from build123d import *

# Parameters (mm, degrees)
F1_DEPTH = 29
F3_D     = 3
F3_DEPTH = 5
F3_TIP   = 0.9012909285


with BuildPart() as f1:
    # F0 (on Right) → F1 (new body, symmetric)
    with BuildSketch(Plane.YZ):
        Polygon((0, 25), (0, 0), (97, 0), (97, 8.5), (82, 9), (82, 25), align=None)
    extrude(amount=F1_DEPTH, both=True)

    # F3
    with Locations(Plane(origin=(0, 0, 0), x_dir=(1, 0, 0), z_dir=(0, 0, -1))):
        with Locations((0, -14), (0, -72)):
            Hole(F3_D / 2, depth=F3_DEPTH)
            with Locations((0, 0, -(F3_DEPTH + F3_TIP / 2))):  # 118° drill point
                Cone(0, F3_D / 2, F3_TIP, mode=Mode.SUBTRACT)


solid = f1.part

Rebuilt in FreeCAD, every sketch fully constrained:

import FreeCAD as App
import Part
import Sketcher

doc = App.newDocument("Part")
body = doc.addObject("PartDesign::Body", "Body")

# Sketch on YZ plane
sketch1 = body.newObject("Sketcher::SketchObject", "Sketch")
sketch1.AttachmentSupport = (doc.getObject("YZ_Plane"), [""])
sketch1.MapMode = "FlatFace"
sketch1.addGeometry(Part.LineSegment(App.Vector(0, 25, 0), App.Vector(0, 0, 0)), False)
sketch1.addGeometry(Part.LineSegment(App.Vector(0, 0, 0), App.Vector(97, 0, 0)), False)
sketch1.addGeometry(Part.LineSegment(App.Vector(97, 0, 0), App.Vector(97, 8.5, 0)), False)
sketch1.addGeometry(Part.LineSegment(App.Vector(97, 8.5, 0), App.Vector(82, 9, 0)), False)
sketch1.addGeometry(Part.LineSegment(App.Vector(82, 9, 0), App.Vector(82, 25, 0)), False)
sketch1.addGeometry(Part.LineSegment(App.Vector(82, 25, 0), App.Vector(0, 25, 0)), False)
sketch1.addConstraint(Sketcher.Constraint("Coincident", 0, 2, 1, 1))
sketch1.addConstraint(Sketcher.Constraint("Coincident", 1, 2, 2, 1))
sketch1.addConstraint(Sketcher.Constraint("Coincident", 2, 2, 3, 1))
sketch1.addConstraint(Sketcher.Constraint("Coincident", 3, 2, 4, 1))
sketch1.addConstraint(Sketcher.Constraint("Coincident", 4, 2, 5, 1))
sketch1.addConstraint(Sketcher.Constraint("Coincident", 5, 2, 0, 1))
sketch1.addConstraint(Sketcher.Constraint("Vertical", 0))
sketch1.addConstraint(Sketcher.Constraint("Horizontal", 1))
sketch1.addConstraint(Sketcher.Constraint("Vertical", 2))
sketch1.addConstraint(Sketcher.Constraint("Vertical", 4))
sketch1.addConstraint(Sketcher.Constraint("Horizontal", 5))
sketch1.addConstraint(Sketcher.Constraint("Coincident", 0, 2, -1, 1))
sketch1.addConstraint(Sketcher.Constraint("DistanceX", 1, 1, 1, 2, 97.0))
sketch1.addConstraint(Sketcher.Constraint("DistanceX", 5, 2, 5, 1, 82.0))
sketch1.addConstraint(Sketcher.Constraint("DistanceY", 0, 2, 0, 1, 25.0))
sketch1.addConstraint(Sketcher.Constraint("DistanceY", 4, 1, 4, 2, 16.0))
sketch1.addConstraint(Sketcher.Constraint("DistanceY", 2, 1, 2, 2, 8.5))
pad1 = body.newObject("PartDesign::Pad", "Pad")
pad1.Profile = sketch1
pad1.Length = 58
pad1.Midplane = True

# Sketch on XY plane
sketch2 = body.newObject("Sketcher::SketchObject", "Sketch001")
sketch2.AttachmentSupport = (doc.getObject("XY_Plane"), [""])
sketch2.MapMode = "FlatFace"
sketch2.addGeometry(Part.Circle(App.Vector(0, 14, 0), App.Vector(0, 0, 1), 1.5), False)
sketch2.addGeometry(Part.Circle(App.Vector(0, 72, 0), App.Vector(0, 0, 1), 1.5), False)
sketch2.addConstraint(Sketcher.Constraint("Equal", 0, 1))
sketch2.addConstraint(Sketcher.Constraint("PointOnObject", 0, 3, -2))
sketch2.addConstraint(Sketcher.Constraint("PointOnObject", 1, 3, -2))
sketch2.addConstraint(Sketcher.Constraint("Diameter", 0, 3.0))
sketch2.addConstraint(Sketcher.Constraint("DistanceY", -1, 1, 0, 3, 14.0))
sketch2.addConstraint(Sketcher.Constraint("DistanceY", -1, 1, 1, 3, 72.0))
doc.recompute()
hole = body.newObject("PartDesign::Hole", "Hole")
hole.Profile = sketch2
hole.ThreadType = "None"
hole.Diameter = 3
hole.DepthType = "Dimension"
hole.Depth = 5
hole.DrillPoint = "Angled"
hole.DrillPointAngle = 118
hole.Reversed = True

doc.recompute()
